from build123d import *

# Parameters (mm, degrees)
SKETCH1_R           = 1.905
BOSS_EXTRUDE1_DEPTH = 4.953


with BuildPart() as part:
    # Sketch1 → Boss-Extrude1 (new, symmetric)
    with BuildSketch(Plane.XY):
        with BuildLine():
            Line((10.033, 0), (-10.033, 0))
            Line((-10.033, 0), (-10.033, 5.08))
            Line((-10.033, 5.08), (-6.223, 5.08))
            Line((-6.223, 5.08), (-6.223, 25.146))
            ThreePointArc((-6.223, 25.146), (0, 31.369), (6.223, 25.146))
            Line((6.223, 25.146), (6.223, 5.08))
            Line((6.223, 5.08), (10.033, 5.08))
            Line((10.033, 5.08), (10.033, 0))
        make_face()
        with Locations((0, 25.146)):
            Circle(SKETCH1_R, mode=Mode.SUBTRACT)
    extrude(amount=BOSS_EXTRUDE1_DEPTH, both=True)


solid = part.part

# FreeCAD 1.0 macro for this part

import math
import FreeCAD as App
import Part
import Sketcher
from FreeCAD import Vector
Q = App.Units.Quantity

doc = App.newDocument("Part")
body = doc.addObject("PartDesign::Body", "Body")

sketch1 = doc.addObject("Sketcher::SketchObject", "Sketch")
body.addObject(sketch1)
sketch1.AttachmentSupport = (doc.XY_Plane, [""])
sketch1.MapMode = "FlatFace"
sketch1.addGeometry([
    Part.LineSegment(Vector(-10, 0, 0), Vector(10, 0, 0)),
    Part.LineSegment(Vector(10, 0, 0), Vector(10, 5.1, 0)),
    Part.LineSegment(Vector(10, 5.1, 0), Vector(6.2, 5.1, 0)),
    Part.LineSegment(Vector(6.2, 5.1, 0), Vector(6.2, 25.1, 0)),
    Part.ArcOfCircle(Part.Circle(Vector(0, 25.1, 0), Vector(0, 0, 1), 6.2), math.radians(0), math.radians(180)),
    Part.LineSegment(Vector(-6.2, 25.1, 0), Vector(-6.2, 5.1, 0)),
    Part.LineSegment(Vector(-6.2, 5.1, 0), Vector(-10, 5.1, 0)),
    Part.LineSegment(Vector(-10, 5.1, 0), Vector(-10, 0, 0)),
    Part.Circle(Vector(0, 25.1, 0), Vector(0, 0, 1), 1.9),
], False)
sketch1.addConstraint([
    Sketcher.Constraint("Coincident", 0, 2, 1, 1),
    Sketcher.Constraint("Coincident", 1, 2, 2, 1),
    Sketcher.Constraint("Coincident", 2, 2, 3, 1),
    Sketcher.Constraint("Tangent", 3, 2, 4, 1),
    Sketcher.Constraint("Tangent", 4, 2, 5, 1),
    Sketcher.Constraint("Coincident", 5, 2, 6, 1),
    Sketcher.Constraint("Coincident", 6, 2, 7, 1),
    Sketcher.Constraint("Coincident", 7, 2, 0, 1),
    Sketcher.Constraint("Horizontal", 0),
    Sketcher.Constraint("Vertical", 1),
    Sketcher.Constraint("Horizontal", 2),
    Sketcher.Constraint("Vertical", 3),
    Sketcher.Constraint("Vertical", 5),
    Sketcher.Constraint("Horizontal", 6),
    Sketcher.Constraint("Vertical", 7),
    Sketcher.Constraint("Coincident", 8, 3, 4, 3),
    Sketcher.Constraint("Symmetric", 0, 2, 7, 2, -1, 1),
    Sketcher.Constraint("Symmetric", 2, 2, 5, 2, -2),
    Sketcher.Constraint("Equal", 0, 3),
    Sketcher.Constraint("Diameter", 8, Q("0.15 in")),
    Sketcher.Constraint("DistanceY", 1, 1, 1, 2, Q("0.2 in")),
    Sketcher.Constraint("Radius", 4, Q("0.245 in")),
    Sketcher.Constraint("DistanceX", 0, 1, 0, 2, Q("0.79 in")),
])
pad1 = doc.addObject("PartDesign::Pad", "Pad")
body.addObject(pad1)
pad1.Profile = sketch1
pad1.Length = Q("0.39 in")
pad1.Midplane = True

doc.recompute()
